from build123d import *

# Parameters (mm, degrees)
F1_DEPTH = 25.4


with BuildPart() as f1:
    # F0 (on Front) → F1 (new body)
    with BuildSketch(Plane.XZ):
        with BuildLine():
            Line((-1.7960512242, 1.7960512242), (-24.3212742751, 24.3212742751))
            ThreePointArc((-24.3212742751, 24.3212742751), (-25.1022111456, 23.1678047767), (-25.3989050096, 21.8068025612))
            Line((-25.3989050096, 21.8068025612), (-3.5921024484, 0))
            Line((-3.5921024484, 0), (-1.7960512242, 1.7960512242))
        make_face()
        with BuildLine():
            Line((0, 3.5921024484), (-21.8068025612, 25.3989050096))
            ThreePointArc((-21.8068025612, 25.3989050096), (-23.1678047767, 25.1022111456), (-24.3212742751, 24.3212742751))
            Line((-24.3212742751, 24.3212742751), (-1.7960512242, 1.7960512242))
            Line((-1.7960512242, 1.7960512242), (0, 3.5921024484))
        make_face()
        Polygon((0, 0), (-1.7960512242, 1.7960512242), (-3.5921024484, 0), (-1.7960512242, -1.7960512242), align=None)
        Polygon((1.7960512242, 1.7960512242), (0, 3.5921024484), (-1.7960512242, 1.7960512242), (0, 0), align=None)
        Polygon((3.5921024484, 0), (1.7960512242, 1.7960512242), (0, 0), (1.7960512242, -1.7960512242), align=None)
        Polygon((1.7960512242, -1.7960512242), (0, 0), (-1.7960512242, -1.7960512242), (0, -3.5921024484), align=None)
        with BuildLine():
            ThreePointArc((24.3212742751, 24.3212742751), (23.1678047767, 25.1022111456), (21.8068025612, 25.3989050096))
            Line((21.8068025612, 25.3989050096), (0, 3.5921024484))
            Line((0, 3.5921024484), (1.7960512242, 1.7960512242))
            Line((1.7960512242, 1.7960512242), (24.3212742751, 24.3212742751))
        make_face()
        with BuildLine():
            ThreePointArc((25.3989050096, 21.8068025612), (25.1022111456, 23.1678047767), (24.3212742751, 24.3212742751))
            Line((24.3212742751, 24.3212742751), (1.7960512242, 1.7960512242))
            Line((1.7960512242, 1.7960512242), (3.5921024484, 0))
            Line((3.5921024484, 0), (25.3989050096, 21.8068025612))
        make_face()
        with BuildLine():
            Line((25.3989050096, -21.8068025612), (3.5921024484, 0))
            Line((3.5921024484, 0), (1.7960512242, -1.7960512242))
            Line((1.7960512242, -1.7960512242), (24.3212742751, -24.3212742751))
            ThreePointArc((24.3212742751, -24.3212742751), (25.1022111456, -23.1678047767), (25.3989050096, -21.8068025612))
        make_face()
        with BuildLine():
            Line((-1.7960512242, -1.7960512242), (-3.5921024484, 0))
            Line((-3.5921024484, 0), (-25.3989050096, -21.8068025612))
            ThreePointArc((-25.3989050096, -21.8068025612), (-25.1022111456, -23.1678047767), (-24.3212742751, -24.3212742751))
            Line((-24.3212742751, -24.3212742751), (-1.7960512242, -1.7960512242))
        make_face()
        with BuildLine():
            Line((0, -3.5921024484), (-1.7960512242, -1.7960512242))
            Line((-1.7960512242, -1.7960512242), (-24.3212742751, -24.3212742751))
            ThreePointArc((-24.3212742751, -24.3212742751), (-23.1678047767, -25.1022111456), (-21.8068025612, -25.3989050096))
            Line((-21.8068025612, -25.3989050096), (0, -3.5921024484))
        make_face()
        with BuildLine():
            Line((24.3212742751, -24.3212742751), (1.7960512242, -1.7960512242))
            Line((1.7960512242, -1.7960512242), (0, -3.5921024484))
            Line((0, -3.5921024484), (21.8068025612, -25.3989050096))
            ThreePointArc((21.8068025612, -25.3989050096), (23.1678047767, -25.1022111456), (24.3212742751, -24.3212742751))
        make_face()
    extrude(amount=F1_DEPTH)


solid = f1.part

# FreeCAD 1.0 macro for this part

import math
import FreeCAD as App
import Part
import Sketcher
Q = App.Units.Quantity

doc = App.newDocument("Part")
body = doc.addObject("PartDesign::Body", "Body")

# Sketch on XZ plane
sketch1 = body.newObject("Sketcher::SketchObject", "Sketch")
sketch1.AttachmentSupport = (doc.getObject("XZ_Plane"), [""])
sketch1.MapMode = "FlatFace"
sketch1.addGeometry([
    Part.ArcOfCircle(Part.Circle(App.Vector(-21.7, 21.7, 0), App.Vector(0, 0, 1), 3.7), math.radians(135), math.radians(179)),  # 0
    Part.LineSegment(App.Vector(-25.4, 21.8, 0), App.Vector(-3.6, 0, 0)),  # 1
    Part.LineSegment(App.Vector(-3.6, 0, 0), App.Vector(-25.4, -21.8, 0)),  # 2
    Part.ArcOfCircle(Part.Circle(App.Vector(-21.7, -21.7, 0), App.Vector(0, 0, 1), 3.7), math.radians(-179), math.radians(-135)),  # 3
    Part.ArcOfCircle(Part.Circle(App.Vector(-21.7, -21.7, 0), App.Vector(0, 0, 1), 3.7), math.radians(-135), math.radians(-91)),  # 4
    Part.LineSegment(App.Vector(-21.8, -25.4, 0), App.Vector(0, -3.6, 0)),  # 5
    Part.LineSegment(App.Vector(0, -3.6, 0), App.Vector(21.8, -25.4, 0)),  # 6
    Part.ArcOfCircle(Part.Circle(App.Vector(21.7, -21.7, 0), App.Vector(0, 0, 1), 3.7), math.radians(-89), math.radians(-45)),  # 7
    Part.ArcOfCircle(Part.Circle(App.Vector(21.7, -21.7, 0), App.Vector(0, 0, 1), 3.7), math.radians(-45), math.radians(-1)),  # 8
    Part.LineSegment(App.Vector(25.4, -21.8, 0), App.Vector(3.6, 0, 0)),  # 9
    Part.LineSegment(App.Vector(3.6, 0, 0), App.Vector(25.4, 21.8, 0)),  # 10
    Part.ArcOfCircle(Part.Circle(App.Vector(21.7, 21.7, 0), App.Vector(0, 0, 1), 3.7), math.radians(1), math.radians(45)),  # 11
    Part.ArcOfCircle(Part.Circle(App.Vector(21.7, 21.7, 0), App.Vector(0, 0, 1), 3.7), math.radians(45), math.radians(89)),  # 12
    Part.LineSegment(App.Vector(21.8, 25.4, 0), App.Vector(0, 3.6, 0)),  # 13
    Part.LineSegment(App.Vector(0, 3.6, 0), App.Vector(-21.8, 25.4, 0)),  # 14
    Part.ArcOfCircle(Part.Circle(App.Vector(-21.7, 21.7, 0), App.Vector(0, 0, 1), 3.7), math.radians(91), math.radians(135)),  # 15
], False)
sketch1.addConstraint([
    Sketcher.Constraint("Coincident", 0, 2, 1, 1),
    Sketcher.Constraint("Coincident", 1, 2, 2, 1),
    Sketcher.Constraint("Coincident", 2, 2, 3, 1),
    Sketcher.Constraint("Tangent", 3, 2, 4, 1),
    Sketcher.Constraint("Coincident", 4, 2, 5, 1),
    Sketcher.Constraint("Coincident", 5, 2, 6, 1),
    Sketcher.Constraint("Coincident", 6, 2, 7, 1),
    Sketcher.Constraint("Tangent", 7, 2, 8, 1),
    Sketcher.Constraint("Coincident", 8, 2, 9, 1),
    Sketcher.Constraint("Coincident", 9, 2, 10, 1),
    Sketcher.Constraint("Coincident", 10, 2, 11, 1),
    Sketcher.Constraint("Tangent", 11, 2, 12, 1),
    Sketcher.Constraint("Coincident", 12, 2, 13, 1),
    Sketcher.Constraint("Coincident", 13, 2, 14, 1),
    Sketcher.Constraint("Coincident", 14, 2, 15, 1),
    Sketcher.Constraint("Tangent", 15, 2, 0, 1),
    Sketcher.Constraint("Equal", 0, 3),
    Sketcher.Constraint("Equal", 3, 4),
    Sketcher.Constraint("Equal", 4, 7),
    Sketcher.Constraint("Equal", 7, 8),
    Sketcher.Constraint("Equal", 8, 11),
    Sketcher.Constraint("Equal", 11, 12),
    Sketcher.Constraint("Equal", 12, 15),
    Sketcher.Constraint("Symmetric", 0, 3, 7, 3, -1, 1),
    Sketcher.Constraint("Symmetric", 3, 3, 11, 3, -1, 1),
    Sketcher.Constraint("Symmetric", 1, 2, 9, 2, -1, 1),
    Sketcher.Constraint("Symmetric", 5, 2, 13, 2, -1, 1),
    Sketcher.Constraint("Symmetric", 3, 3, 7, 3, -2),
    Sketcher.Constraint("PointOnObject", 1, 2, -1),
    Sketcher.Constraint("PointOnObject", 5, 2, -2),
    Sketcher.Constraint("Perpendicular", 1, 2),
    Sketcher.Constraint("Parallel", 2, 5),
    Sketcher.Constraint("Perpendicular", 5, 6),
    Sketcher.Constraint("Parallel", 6, 9),
    Sketcher.Constraint("Perpendicular", 9, 10),
    Sketcher.Constraint("Parallel", 10, 13),
    Sketcher.Constraint("Perpendicular", 13, 14),
    Sketcher.Constraint("Horizontal", 4, 2, 6, 2),
    Sketcher.Constraint("Horizontal", 3, 2, 7, 2),
    Sketcher.Constraint("Horizontal", 11, 2, 15, 2),
    Sketcher.Constraint("Vertical", 7, 2, 11, 2),
    Sketcher.Constraint("Equal", 2, 5),
    Sketcher.Constraint("Radius", 0, Q("0.145 in")),
    Sketcher.Constraint("DistanceY", 3, 3, 0, 3, Q("1.71 in")),
    Sketcher.Constraint("DistanceX", 4, 3, 7, 3, Q("1.71 in")),
    Sketcher.Constraint("DistanceX", 4, 2, 1, 2, 18.2147),
    Sketcher.Constraint("DistanceX", 2, 2, 3, 2, 1.077631),
])
pad1 = body.newObject("PartDesign::Pad", "Pad")
pad1.Profile = sketch1
pad1.Length = Q("1 in")

doc.recompute()
